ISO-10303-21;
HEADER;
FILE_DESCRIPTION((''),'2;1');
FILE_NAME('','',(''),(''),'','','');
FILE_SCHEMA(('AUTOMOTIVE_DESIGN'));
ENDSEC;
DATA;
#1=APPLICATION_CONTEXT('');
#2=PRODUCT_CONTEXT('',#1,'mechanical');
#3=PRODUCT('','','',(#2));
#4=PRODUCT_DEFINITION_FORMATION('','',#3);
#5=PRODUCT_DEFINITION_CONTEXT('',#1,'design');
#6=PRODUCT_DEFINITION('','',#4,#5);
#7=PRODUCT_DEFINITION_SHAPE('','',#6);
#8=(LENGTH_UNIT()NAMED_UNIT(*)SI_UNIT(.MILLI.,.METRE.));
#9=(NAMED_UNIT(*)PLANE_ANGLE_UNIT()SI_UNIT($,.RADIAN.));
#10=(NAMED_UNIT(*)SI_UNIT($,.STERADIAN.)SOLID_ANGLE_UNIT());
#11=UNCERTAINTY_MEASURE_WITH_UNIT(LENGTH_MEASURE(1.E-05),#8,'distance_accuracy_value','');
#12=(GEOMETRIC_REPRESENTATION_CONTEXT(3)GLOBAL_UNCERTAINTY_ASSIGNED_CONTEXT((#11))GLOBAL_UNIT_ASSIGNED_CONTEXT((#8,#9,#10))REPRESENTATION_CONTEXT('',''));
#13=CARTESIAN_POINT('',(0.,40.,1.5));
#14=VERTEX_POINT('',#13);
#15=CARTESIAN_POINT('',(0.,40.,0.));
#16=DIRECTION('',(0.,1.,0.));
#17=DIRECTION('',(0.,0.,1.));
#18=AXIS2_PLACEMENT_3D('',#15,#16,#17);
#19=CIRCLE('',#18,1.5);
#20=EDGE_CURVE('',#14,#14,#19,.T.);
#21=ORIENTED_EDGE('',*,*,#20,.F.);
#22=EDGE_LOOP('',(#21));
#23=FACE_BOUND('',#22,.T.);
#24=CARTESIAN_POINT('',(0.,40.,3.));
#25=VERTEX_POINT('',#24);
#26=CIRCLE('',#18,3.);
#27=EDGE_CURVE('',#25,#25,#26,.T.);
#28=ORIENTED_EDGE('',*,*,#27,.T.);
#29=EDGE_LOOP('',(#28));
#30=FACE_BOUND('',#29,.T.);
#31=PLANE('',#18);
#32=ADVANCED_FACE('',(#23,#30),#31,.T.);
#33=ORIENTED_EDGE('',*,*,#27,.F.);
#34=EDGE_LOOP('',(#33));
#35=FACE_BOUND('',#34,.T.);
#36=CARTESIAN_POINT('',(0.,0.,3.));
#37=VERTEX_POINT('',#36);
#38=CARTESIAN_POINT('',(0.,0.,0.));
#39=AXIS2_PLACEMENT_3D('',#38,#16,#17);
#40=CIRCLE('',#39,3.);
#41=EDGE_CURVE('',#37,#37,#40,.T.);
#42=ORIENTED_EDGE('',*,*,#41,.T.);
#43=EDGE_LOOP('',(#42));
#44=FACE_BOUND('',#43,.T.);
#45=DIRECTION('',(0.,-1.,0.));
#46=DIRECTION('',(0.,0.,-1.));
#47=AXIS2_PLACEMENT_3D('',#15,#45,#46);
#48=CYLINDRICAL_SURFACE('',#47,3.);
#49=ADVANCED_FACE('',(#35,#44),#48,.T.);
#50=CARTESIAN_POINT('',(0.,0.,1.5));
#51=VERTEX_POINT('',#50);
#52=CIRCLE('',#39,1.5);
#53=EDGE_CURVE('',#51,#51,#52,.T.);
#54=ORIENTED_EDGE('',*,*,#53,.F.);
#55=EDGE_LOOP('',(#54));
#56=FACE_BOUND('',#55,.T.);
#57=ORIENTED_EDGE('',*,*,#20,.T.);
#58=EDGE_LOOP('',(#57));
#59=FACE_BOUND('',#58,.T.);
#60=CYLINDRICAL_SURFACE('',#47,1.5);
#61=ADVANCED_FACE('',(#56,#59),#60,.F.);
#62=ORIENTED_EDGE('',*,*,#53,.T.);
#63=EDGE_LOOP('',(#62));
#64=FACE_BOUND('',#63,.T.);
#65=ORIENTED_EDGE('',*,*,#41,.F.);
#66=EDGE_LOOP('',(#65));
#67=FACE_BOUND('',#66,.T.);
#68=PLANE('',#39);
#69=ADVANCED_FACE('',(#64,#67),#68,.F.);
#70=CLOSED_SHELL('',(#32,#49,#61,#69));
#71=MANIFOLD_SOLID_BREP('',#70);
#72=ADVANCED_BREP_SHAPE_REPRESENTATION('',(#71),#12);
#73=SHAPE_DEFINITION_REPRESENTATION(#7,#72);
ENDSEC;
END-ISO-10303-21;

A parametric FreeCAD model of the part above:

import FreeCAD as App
import Part
import Sketcher
Q = App.Units.Quantity

doc = App.newDocument("Part")
params = doc.addObject("Spreadsheet::Sheet", "Params")
for row, (alias, value) in enumerate([
    ("sketch1_diameter", "6 mm"),
    ("sketch1_diameter2", "3 mm"),
    ("pad1_length", "40 mm"),
], start=1):
    params.set(f"A{row}", alias)
    params.set(f"B{row}", "=" + value)
    params.setAlias(f"B{row}", alias)

body = doc.addObject("PartDesign::Body", "Body")

sketch1 = body.newObject("Sketcher::SketchObject", "Sketch")
sketch1.AttachmentSupport = (doc.getObject("XZ_Plane"), [""])
sketch1.MapMode = "FlatFace"
sketch1.addGeometry([
    Part.Circle(App.Vector(0, 0, 0), App.Vector(0, 0, 1), 3),
    Part.Circle(App.Vector(0, 0, 0), App.Vector(0, 0, 1), 1.5),
], False)
sketch1.addConstraint([
    Sketcher.Constraint("Coincident", 0, 3, -1, 1),
    Sketcher.Constraint("Coincident", 1, 3, -1, 1),
    Sketcher.Constraint("Diameter", 0, Q("6 mm")),
    Sketcher.Constraint("Diameter", 1, Q("3 mm")),
])
sketch1.setExpression("Constraints[2]", "Params.sketch1_diameter")
sketch1.setExpression("Constraints[3]", "Params.sketch1_diameter2")
pad1 = body.newObject("PartDesign::Pad", "Pad")
pad1.Profile = sketch1
pad1.setExpression("Length", "Params.pad1_length")
pad1.Reversed = True

doc.recompute()
